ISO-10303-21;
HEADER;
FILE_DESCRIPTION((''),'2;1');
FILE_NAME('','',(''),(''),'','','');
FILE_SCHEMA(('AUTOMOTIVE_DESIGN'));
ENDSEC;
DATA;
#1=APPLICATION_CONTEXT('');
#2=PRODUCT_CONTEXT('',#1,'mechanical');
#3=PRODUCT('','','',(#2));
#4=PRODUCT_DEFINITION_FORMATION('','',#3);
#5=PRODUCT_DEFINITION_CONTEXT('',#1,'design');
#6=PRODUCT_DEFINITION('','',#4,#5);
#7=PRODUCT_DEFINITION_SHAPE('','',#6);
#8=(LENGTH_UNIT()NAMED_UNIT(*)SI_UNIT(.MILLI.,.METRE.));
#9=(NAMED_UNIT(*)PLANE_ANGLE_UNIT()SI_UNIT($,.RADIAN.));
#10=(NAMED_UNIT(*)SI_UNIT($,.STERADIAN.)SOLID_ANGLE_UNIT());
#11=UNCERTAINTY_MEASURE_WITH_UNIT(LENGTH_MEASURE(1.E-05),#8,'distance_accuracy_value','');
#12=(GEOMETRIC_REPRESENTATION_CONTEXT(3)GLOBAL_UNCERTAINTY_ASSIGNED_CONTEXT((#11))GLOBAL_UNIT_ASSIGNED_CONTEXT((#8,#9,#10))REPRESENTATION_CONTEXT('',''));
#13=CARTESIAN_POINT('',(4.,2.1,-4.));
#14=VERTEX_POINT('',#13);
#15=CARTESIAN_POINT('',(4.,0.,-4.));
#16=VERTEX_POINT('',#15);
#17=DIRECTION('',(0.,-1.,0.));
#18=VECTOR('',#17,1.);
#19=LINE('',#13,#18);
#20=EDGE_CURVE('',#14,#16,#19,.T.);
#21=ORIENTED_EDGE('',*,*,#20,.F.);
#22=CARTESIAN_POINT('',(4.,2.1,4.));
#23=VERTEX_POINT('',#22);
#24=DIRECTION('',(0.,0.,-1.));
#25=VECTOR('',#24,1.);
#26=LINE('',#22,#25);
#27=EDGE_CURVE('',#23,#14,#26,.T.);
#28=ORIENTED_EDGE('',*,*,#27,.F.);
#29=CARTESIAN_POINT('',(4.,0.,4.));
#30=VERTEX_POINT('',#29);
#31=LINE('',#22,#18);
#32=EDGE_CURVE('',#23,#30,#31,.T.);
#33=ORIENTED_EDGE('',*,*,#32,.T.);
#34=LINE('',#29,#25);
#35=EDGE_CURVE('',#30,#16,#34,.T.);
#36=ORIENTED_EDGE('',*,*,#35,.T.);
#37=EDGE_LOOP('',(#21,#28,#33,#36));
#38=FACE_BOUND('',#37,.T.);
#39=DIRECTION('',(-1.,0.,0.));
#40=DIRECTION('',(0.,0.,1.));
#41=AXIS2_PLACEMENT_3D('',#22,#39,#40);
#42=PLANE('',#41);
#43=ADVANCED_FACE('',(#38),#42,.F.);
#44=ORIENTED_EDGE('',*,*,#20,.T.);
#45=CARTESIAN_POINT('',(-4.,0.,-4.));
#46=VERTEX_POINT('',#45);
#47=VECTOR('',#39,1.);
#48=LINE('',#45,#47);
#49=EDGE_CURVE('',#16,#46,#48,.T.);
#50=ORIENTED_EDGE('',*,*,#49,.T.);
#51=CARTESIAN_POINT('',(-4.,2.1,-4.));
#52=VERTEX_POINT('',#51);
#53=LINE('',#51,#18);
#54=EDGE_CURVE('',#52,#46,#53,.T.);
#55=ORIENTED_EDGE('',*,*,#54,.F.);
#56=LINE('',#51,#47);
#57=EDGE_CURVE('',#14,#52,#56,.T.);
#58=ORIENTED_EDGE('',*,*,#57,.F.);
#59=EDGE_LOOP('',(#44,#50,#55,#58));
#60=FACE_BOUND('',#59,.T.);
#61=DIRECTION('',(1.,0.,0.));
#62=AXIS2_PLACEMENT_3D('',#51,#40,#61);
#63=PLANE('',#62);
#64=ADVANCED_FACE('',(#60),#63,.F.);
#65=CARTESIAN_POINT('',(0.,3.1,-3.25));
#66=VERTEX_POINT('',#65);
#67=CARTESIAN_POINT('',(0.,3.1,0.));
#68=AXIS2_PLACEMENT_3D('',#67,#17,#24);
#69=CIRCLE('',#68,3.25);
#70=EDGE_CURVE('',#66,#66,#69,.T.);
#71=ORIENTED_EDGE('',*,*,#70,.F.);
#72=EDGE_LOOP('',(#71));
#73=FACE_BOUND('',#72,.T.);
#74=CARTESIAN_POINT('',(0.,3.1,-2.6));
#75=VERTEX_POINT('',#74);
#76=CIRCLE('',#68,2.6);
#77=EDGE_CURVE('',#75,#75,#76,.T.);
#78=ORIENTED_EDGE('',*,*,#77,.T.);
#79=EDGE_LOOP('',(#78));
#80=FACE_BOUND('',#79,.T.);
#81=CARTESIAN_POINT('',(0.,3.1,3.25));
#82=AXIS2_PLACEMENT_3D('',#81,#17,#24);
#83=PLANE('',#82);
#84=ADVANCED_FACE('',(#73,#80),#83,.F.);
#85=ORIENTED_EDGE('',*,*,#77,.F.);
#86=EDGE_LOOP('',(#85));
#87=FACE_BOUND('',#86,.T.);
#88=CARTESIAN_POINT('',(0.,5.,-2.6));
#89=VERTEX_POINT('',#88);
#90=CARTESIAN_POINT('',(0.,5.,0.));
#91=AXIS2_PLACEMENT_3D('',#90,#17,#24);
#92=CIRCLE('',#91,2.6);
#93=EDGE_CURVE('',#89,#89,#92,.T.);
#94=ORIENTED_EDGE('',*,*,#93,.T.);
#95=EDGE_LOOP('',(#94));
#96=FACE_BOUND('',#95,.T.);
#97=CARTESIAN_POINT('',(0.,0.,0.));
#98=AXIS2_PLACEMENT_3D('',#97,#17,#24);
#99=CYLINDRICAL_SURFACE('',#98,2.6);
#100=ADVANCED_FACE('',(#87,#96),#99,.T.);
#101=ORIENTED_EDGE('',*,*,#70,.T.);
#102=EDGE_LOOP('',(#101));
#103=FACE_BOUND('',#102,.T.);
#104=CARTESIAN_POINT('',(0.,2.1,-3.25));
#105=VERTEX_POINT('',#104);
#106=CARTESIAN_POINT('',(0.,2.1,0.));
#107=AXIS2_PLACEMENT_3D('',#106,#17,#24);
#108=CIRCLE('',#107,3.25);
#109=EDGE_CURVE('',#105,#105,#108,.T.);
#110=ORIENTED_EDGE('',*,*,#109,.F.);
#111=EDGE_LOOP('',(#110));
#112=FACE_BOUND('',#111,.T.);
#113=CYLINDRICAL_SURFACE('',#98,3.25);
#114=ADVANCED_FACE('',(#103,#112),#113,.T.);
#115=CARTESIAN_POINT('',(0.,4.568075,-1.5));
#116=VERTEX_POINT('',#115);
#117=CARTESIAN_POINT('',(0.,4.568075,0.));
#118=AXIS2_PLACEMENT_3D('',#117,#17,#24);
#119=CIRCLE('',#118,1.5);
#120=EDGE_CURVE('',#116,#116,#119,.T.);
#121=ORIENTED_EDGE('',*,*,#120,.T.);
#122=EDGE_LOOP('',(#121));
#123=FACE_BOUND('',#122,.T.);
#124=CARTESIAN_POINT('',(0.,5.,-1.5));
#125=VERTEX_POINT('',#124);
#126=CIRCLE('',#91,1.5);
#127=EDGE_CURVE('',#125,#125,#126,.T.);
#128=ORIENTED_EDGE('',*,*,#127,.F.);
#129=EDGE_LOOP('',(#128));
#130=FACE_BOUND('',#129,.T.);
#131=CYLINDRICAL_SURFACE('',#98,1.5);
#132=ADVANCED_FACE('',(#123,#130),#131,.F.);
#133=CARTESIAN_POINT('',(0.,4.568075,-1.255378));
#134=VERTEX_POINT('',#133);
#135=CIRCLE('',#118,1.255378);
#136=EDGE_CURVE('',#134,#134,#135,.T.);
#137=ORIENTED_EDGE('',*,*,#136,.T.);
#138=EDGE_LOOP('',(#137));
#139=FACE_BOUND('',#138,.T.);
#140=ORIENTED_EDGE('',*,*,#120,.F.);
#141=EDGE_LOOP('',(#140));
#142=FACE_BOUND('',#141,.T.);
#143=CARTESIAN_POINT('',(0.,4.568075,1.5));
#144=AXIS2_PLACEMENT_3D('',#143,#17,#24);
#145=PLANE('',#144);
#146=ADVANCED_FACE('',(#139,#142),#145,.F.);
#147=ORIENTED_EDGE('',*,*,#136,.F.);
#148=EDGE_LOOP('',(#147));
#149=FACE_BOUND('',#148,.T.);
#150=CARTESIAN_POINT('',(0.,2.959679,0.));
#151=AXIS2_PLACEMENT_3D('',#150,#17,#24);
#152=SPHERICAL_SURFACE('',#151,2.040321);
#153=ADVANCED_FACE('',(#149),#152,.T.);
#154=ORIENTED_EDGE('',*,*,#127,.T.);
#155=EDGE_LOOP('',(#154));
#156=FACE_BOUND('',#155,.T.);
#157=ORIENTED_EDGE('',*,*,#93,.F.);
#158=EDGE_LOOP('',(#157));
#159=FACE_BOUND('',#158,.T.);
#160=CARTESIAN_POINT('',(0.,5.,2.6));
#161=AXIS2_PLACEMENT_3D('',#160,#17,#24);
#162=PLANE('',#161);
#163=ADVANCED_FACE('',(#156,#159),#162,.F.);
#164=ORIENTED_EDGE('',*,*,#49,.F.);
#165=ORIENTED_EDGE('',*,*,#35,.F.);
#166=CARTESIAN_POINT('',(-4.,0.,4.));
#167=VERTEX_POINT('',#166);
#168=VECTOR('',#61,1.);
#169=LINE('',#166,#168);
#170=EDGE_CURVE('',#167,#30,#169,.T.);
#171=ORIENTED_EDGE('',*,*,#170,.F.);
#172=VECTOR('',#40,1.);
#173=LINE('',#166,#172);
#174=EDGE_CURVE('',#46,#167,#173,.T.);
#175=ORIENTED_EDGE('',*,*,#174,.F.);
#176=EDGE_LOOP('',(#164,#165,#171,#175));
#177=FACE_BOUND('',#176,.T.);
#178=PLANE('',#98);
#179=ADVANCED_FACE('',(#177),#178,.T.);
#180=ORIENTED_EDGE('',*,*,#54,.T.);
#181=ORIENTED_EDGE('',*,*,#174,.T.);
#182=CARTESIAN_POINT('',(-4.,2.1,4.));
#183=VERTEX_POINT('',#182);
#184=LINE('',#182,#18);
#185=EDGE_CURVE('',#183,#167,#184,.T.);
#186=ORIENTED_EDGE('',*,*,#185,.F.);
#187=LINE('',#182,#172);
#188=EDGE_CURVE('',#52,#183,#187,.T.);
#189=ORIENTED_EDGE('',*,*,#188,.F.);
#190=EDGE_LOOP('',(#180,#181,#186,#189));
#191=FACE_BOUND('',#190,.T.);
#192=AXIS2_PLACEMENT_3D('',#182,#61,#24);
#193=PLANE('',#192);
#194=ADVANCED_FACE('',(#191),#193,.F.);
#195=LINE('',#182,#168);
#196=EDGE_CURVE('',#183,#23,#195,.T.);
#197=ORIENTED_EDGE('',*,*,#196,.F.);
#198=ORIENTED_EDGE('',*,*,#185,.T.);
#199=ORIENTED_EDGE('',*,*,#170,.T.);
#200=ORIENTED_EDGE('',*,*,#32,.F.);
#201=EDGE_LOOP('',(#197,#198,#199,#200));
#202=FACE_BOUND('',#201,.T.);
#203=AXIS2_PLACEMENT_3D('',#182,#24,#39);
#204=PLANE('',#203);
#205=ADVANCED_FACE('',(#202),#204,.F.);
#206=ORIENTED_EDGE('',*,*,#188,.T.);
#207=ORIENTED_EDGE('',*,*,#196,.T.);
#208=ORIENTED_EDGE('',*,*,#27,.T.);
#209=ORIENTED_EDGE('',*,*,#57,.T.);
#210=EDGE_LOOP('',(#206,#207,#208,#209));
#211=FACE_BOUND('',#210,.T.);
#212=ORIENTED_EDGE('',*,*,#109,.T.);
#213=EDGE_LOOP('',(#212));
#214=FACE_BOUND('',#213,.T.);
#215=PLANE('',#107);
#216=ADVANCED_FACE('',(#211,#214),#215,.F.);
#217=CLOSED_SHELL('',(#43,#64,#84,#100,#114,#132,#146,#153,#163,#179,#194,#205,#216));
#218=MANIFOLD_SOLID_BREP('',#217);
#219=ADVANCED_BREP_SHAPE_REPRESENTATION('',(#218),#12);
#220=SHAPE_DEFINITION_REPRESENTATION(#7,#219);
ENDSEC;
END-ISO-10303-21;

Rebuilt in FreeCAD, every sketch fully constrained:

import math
import FreeCAD as App
import Part
import Sketcher

V = App.Vector
Q = App.Units.Quantity


def add_polygon(sketch, points):
    """Adds a closed chain of lines whose ends are joined by coincident constraints."""
    first, n = sketch.GeometryCount, len(points)
    for a, b in zip(points, points[1:] + points[:1]):
        sketch.addGeometry(Part.LineSegment(App.Vector(*a, 0), App.Vector(*b, 0)), False)
    for i in range(n):
        sketch.addConstraint(Sketcher.Constraint("Coincident", first + i, 2, first + (i + 1) % n, 1))

doc = App.newDocument("Part")
params = doc.addObject("Spreadsheet::Sheet", "Params")
for row, (alias, value) in enumerate([
    ("sketch1_width", "8 mm"),
    ("pad1_length", "2.1 mm"),
    ("sketch2_width", "1 mm"),
    ("sketch2_width2", "2.9 mm"),
    ("sketch2_height", "1.1 mm"),
    ("sketch2_height2", "3.25 mm"),
    ("sketch2_height3", "0.65 mm"),
    ("revolution_angle", "360 deg"),
], start=1):
    params.set(f"A{row}", alias)
    params.set(f"B{row}", "=" + value)
    params.setAlias(f"B{row}", alias)

body = doc.addObject("PartDesign::Body", "Body")

# Sketch on XZ plane
sketch1 = body.newObject("Sketcher::SketchObject", "Sketch")
sketch1.AttachmentSupport = (doc.getObject("XZ_Plane"), [""])
sketch1.MapMode = "FlatFace"
add_polygon(sketch1, [(-4, -4), (-4, 4), (4, 4), (4, -4)])  # lines 0-3
sketch1.addConstraint([
    Sketcher.Constraint("Vertical", 0),
    Sketcher.Constraint("Horizontal", 1),
    Sketcher.Constraint("Vertical", 2),
    Sketcher.Constraint("Horizontal", 3),
    Sketcher.Constraint("Symmetric", 0, 2, 2, 2, -1, 1),
    Sketcher.Constraint("Equal", 3, 0),
    Sketcher.Constraint("DistanceX", 1, 1, 1, 2, Q("8 mm")),
])
sketch1.setExpression("Constraints[10]", "Params.sketch1_width")
pad1 = body.newObject("PartDesign::Pad", "Pad")
pad1.Profile = sketch1
pad1.setExpression("Length", "Params.pad1_length")
pad1.Reversed = True

# Sketch on YZ plane
sketch2 = body.newObject("Sketcher::SketchObject", "Sketch001")
sketch2.AttachmentSupport = (doc.getObject("YZ_Plane"), [""])
sketch2.MapMode = "FlatFace"
sketch2.addGeometry([
    Part.LineSegment(V(3.1, 3.25, 0), V(2.1, 3.25, 0)),  # 0
    Part.LineSegment(V(2.1, 3.25, 0), V(2.1, 0, 0)),  # 1
    Part.LineSegment(V(2.1, 0, 0), V(5, 0, 0)),  # 2
    Part.ArcOfCircle(Part.Circle(V(2.959679, 0, 0), V(0, 0, 1), 2.040321), math.radians(0), math.radians(37.972581)),  # 3
    Part.LineSegment(V(4.568075, 1.255378, 0), V(4.568075, 1.5, 0)),  # 4
    Part.LineSegment(V(4.568075, 1.5, 0), V(5, 1.5, 0)),  # 5
    Part.LineSegment(V(5, 1.5, 0), V(5, 2.6, 0)),  # 6
    Part.LineSegment(V(5, 2.6, 0), V(3.1, 2.6, 0)),  # 7
    Part.LineSegment(V(3.1, 2.6, 0), V(3.1, 3.25, 0)),  # 8
], False)
sketch2.addConstraint([
    Sketcher.Constraint("Coincident", 0, 2, 1, 1),
    Sketcher.Constraint("Coincident", 1, 2, 2, 1),
    Sketcher.Constraint("Coincident", 2, 2, 3, 1),
    Sketcher.Constraint("Coincident", 3, 2, 4, 1),
    Sketcher.Constraint("Coincident", 4, 2, 5, 1),
    Sketcher.Constraint("Coincident", 5, 2, 6, 1),
    Sketcher.Constraint("Coincident", 6, 2, 7, 1),
    Sketcher.Constraint("Coincident", 7, 2, 8, 1),
    Sketcher.Constraint("Coincident", 8, 2, 0, 1),
    Sketcher.Constraint("Horizontal", 0),
    Sketcher.Constraint("Vertical", 1),
    Sketcher.Constraint("Horizontal", 2),
    Sketcher.Constraint("Vertical", 4),
    Sketcher.Constraint("Horizontal", 5),
    Sketcher.Constraint("Vertical", 6),
    Sketcher.Constraint("Horizontal", 7),
    Sketcher.Constraint("Vertical", 8),
    Sketcher.Constraint("PointOnObject", 3, 3, -1),
    Sketcher.Constraint("PointOnObject", 1, 2, -1),
    Sketcher.Constraint("Vertical", 2, 2, 5, 2),
    Sketcher.Constraint("DistanceX", 0, 2, 0, 1, Q("1 mm")),
    Sketcher.Constraint("DistanceX", 2, 1, 2, 2, Q("2.9 mm")),
    Sketcher.Constraint("DistanceY", 6, 1, 6, 2, Q("1.1 mm")),
    Sketcher.Constraint("DistanceX", -1, 1, 2, 2, Q("5 mm")),
    Sketcher.Constraint("DistanceY", 1, 2, 1, 1, Q("3.25 mm")),
    Sketcher.Constraint("DistanceY", 8, 1, 8, 2, Q("0.65 mm")),
    Sketcher.Constraint("Radius", 3, Q("2.040321 mm")),
    Sketcher.Constraint("DistanceX", 5, 1, 5, 2, Q("0.431925 mm")),
])
sketch2.setExpression("Constraints[20]", "Params.sketch2_width")
sketch2.setExpression("Constraints[21]", "Params.sketch2_width2")
sketch2.setExpression("Constraints[22]", "Params.sketch2_height")
sketch2.setExpression("Constraints[24]", "Params.sketch2_height2")
sketch2.setExpression("Constraints[25]", "Params.sketch2_height3")
revolution = body.newObject("PartDesign::Revolution", "Revolution")
revolution.Profile = sketch2
revolution.ReferenceAxis = (sketch2, ["H_Axis"])
revolution.setExpression("Angle", "Params.revolution_angle")

doc.recompute()
